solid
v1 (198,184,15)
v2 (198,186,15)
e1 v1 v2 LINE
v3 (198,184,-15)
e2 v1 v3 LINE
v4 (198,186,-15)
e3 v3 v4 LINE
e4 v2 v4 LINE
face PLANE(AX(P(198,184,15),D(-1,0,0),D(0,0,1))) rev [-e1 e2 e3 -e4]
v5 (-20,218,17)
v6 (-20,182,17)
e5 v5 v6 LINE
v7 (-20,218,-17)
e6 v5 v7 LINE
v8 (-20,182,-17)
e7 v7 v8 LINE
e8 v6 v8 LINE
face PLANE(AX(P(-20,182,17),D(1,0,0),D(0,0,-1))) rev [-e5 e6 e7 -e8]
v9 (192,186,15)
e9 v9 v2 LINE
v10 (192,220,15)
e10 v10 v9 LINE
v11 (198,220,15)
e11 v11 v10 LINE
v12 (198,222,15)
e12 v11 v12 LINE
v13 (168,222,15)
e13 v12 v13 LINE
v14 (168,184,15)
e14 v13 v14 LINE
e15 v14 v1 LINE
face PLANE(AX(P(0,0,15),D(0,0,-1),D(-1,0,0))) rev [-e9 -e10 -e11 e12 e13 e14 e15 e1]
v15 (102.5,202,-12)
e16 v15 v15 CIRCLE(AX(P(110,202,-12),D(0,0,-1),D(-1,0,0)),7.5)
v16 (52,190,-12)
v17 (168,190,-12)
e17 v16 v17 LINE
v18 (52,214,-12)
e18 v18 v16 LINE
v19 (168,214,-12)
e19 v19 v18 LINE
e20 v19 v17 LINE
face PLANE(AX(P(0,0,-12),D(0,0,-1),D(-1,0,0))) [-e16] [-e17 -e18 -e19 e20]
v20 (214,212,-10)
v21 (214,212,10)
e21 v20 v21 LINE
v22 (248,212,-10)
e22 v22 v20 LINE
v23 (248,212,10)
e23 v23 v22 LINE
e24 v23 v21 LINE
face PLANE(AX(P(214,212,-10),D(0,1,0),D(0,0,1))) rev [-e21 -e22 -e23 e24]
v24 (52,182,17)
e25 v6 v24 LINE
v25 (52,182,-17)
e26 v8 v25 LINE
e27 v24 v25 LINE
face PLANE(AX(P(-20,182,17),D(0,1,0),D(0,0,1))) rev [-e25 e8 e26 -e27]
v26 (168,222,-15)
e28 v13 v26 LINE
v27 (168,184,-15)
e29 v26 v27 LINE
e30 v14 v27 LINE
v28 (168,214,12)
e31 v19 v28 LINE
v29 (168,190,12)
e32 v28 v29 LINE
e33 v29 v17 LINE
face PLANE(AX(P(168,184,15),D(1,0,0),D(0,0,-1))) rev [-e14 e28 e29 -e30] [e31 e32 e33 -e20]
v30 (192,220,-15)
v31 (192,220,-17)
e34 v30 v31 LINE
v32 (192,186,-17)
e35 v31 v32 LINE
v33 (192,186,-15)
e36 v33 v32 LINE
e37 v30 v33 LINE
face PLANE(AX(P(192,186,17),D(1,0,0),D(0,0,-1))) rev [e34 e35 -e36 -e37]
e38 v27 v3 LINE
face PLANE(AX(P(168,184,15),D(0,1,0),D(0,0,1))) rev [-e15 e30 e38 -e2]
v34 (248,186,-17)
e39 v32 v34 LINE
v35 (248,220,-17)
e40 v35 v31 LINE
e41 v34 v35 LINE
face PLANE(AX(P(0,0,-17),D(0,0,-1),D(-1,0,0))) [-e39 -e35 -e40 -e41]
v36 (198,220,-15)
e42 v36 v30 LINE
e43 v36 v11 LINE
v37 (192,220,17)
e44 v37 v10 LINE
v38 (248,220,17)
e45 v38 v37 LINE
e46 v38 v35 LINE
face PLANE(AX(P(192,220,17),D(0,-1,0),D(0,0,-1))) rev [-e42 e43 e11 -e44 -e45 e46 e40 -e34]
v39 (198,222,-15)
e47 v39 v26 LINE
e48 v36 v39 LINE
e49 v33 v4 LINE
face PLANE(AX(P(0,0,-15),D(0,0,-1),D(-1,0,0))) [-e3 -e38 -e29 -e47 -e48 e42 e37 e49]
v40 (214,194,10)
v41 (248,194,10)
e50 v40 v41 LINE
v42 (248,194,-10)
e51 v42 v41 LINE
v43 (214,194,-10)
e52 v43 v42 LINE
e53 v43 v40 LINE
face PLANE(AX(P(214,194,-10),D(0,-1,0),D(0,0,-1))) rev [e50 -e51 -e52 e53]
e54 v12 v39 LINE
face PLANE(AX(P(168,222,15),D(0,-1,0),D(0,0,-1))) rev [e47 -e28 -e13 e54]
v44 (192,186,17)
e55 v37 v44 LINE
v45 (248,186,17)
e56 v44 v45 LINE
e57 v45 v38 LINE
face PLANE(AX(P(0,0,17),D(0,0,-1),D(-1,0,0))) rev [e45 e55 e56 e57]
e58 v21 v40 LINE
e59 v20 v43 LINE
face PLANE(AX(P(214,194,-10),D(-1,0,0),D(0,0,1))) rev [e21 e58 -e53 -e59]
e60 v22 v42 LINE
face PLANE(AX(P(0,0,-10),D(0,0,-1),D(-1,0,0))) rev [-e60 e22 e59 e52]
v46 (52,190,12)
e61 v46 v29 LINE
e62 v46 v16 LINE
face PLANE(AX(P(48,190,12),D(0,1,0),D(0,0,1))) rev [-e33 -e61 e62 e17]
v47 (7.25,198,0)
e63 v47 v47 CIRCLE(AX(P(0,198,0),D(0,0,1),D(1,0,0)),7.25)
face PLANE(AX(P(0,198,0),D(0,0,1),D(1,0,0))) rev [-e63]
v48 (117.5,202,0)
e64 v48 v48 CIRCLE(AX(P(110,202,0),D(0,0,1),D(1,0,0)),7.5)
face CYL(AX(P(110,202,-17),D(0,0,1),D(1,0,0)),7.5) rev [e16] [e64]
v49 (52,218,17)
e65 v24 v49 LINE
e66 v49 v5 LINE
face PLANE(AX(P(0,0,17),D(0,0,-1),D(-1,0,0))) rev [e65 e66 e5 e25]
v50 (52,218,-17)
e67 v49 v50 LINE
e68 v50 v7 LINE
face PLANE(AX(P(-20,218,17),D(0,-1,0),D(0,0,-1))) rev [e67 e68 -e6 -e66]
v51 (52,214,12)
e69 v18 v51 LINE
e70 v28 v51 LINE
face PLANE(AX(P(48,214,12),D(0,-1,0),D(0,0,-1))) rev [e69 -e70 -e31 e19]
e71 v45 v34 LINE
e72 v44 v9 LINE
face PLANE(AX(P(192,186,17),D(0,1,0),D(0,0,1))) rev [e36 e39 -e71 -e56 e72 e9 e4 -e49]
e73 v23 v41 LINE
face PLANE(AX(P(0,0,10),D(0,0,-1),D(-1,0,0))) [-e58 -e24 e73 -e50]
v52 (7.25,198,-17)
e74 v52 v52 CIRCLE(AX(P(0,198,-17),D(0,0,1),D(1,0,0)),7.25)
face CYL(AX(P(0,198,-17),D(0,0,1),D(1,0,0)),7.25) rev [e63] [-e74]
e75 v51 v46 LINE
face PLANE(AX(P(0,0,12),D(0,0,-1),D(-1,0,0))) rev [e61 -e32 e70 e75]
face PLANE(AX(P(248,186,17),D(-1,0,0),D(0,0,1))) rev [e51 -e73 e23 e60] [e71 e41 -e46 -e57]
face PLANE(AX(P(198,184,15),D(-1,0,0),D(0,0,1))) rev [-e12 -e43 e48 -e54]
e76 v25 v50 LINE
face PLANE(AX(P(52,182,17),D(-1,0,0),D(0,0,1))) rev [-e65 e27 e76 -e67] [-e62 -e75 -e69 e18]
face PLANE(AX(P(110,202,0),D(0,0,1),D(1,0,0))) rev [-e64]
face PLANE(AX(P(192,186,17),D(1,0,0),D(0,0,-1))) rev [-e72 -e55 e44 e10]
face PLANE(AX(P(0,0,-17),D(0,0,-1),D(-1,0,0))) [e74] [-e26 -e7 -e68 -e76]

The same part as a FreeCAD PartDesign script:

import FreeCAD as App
import Part
import Sketcher


def add_polygon(sketch, points):
    """Adds a closed chain of lines whose ends are joined by coincident constraints."""
    first, n = sketch.GeometryCount, len(points)
    for a, b in zip(points, points[1:] + points[:1]):
        sketch.addGeometry(Part.LineSegment(App.Vector(*a, 0), App.Vector(*b, 0)), False)
    for i in range(n):
        sketch.addConstraint(Sketcher.Constraint("Coincident", first + i, 2, first + (i + 1) % n, 1))

doc = App.newDocument("Part")
body = doc.addObject("PartDesign::Body", "Body")

# Sketch on XY plane
sketch1 = body.newObject("Sketcher::SketchObject", "Sketch")
sketch1.AttachmentSupport = (doc.getObject("XY_Plane"), [""])
sketch1.MapMode = "FlatFace"
add_polygon(sketch1, [(-20, 218), (-20, 182), (52, 182), (52, 218)])  # lines 0-3
sketch1.addConstraint(Sketcher.Constraint("Vertical", 0))
sketch1.addConstraint(Sketcher.Constraint("Horizontal", 1))
sketch1.addConstraint(Sketcher.Constraint("Vertical", 2))
sketch1.addConstraint(Sketcher.Constraint("Horizontal", 3))
sketch1.addConstraint(Sketcher.Constraint("DistanceX", 1, 1, 1, 2, 72.0))
sketch1.addConstraint(Sketcher.Constraint("DistanceY", 0, 2, 0, 1, 36.0))
sketch1.addConstraint(Sketcher.Constraint("DistanceX", 0, 2, -1, 1, 20.0))
sketch1.addConstraint(Sketcher.Constraint("DistanceY", -1, 1, 0, 2, 182.0))
pad1 = body.newObject("PartDesign::Pad", "Pad")
pad1.Profile = sketch1
pad1.Length = 34
pad1.Midplane = True

# Sketch on XY plane
sketch2 = body.newObject("Sketcher::SketchObject", "Sketch001")
sketch2.AttachmentSupport = (doc.getObject("XY_Plane"), [""])
sketch2.MapMode = "FlatFace"
add_polygon(sketch2, [(48, 214), (48, 190), (172, 190), (172, 214)])  # lines 0-3
sketch2.addConstraint(Sketcher.Constraint("Vertical", 0))
sketch2.addConstraint(Sketcher.Constraint("Horizontal", 1))
sketch2.addConstraint(Sketcher.Constraint("Vertical", 2))
sketch2.addConstraint(Sketcher.Constraint("Horizontal", 3))
sketch2.addConstraint(Sketcher.Constraint("DistanceX", 1, 1, 1, 2, 124.0))
sketch2.addConstraint(Sketcher.Constraint("DistanceY", 0, 2, 0, 1, 24.0))
sketch2.addConstraint(Sketcher.Constraint("DistanceX", -1, 1, 0, 2, 48.0))
sketch2.addConstraint(Sketcher.Constraint("DistanceY", -1, 1, 0, 2, 190.0))
pad2 = body.newObject("PartDesign::Pad", "Pad001")
pad2.Profile = sketch2
pad2.Length = 24
pad2.Midplane = True

# Sketch on XY plane
sketch3 = body.newObject("Sketcher::SketchObject", "Sketch002")
sketch3.AttachmentSupport = (doc.getObject("XY_Plane"), [""])
sketch3.MapMode = "FlatFace"
add_polygon(sketch3, [(168, 222), (168, 184), (198, 184), (198, 222)])  # lines 0-3
sketch3.addConstraint(Sketcher.Constraint("Vertical", 0))
sketch3.addConstraint(Sketcher.Constraint("Horizontal", 1))
sketch3.addConstraint(Sketcher.Constraint("Vertical", 2))
sketch3.addConstraint(Sketcher.Constraint("Horizontal", 3))
sketch3.addConstraint(Sketcher.Constraint("DistanceX", 1, 1, 1, 2, 30.0))
sketch3.addConstraint(Sketcher.Constraint("DistanceY", 0, 2, 0, 1, 38.0))
sketch3.addConstraint(Sketcher.Constraint("DistanceX", -1, 1, 0, 2, 168.0))
sketch3.addConstraint(Sketcher.Constraint("DistanceY", -1, 1, 0, 2, 184.0))
pad3 = body.newObject("PartDesign::Pad", "Pad002")
pad3.Profile = sketch3
pad3.Length = 30
pad3.Midplane = True

# Sketch on XY plane
sketch4 = body.newObject("Sketcher::SketchObject", "Sketch003")
sketch4.AttachmentSupport = (doc.getObject("XY_Plane"), [""])
sketch4.MapMode = "FlatFace"
add_polygon(sketch4, [(192, 220), (192, 186), (248, 186), (248, 220)])  # lines 0-3
sketch4.addConstraint(Sketcher.Constraint("Vertical", 0))
sketch4.addConstraint(Sketcher.Constraint("Horizontal", 1))
sketch4.addConstraint(Sketcher.Constraint("Vertical", 2))
sketch4.addConstraint(Sketcher.Constraint("Horizontal", 3))
sketch4.addConstraint(Sketcher.Constraint("DistanceX", 1, 1, 1, 2, 56.0))
sketch4.addConstraint(Sketcher.Constraint("DistanceY", 0, 2, 0, 1, 34.0))
sketch4.addConstraint(Sketcher.Constraint("DistanceX", -1, 1, 0, 2, 192.0))
sketch4.addConstraint(Sketcher.Constraint("DistanceY", -1, 1, 0, 2, 186.0))
pad4 = body.newObject("PartDesign::Pad", "Pad003")
pad4.Profile = sketch4
pad4.Length = 34
pad4.Midplane = True

# Sketch on XY plane
sketch5 = body.newObject("Sketcher::SketchObject", "Sketch004")
sketch5.AttachmentSupport = (doc.getObject("XY_Plane"), [""])
sketch5.MapMode = "FlatFace"
add_polygon(sketch5, [(214, 212), (214, 194), (252, 194), (252, 212)])  # lines 0-3
sketch5.addConstraint(Sketcher.Constraint("Vertical", 0))
sketch5.addConstraint(Sketcher.Constraint("Horizontal", 1))
sketch5.addConstraint(Sketcher.Constraint("Vertical", 2))
sketch5.addConstraint(Sketcher.Constraint("Horizontal", 3))
sketch5.addConstraint(Sketcher.Constraint("DistanceX", 1, 1, 1, 2, 38.0))
sketch5.addConstraint(Sketcher.Constraint("DistanceY", 0, 2, 0, 1, 18.0))
sketch5.addConstraint(Sketcher.Constraint("DistanceX", -1, 1, 0, 2, 214.0))
sketch5.addConstraint(Sketcher.Constraint("DistanceY", -1, 1, 0, 2, 194.0))
pocket1 = body.newObject("PartDesign::Pocket", "Pocket")
pocket1.Profile = sketch5
pocket1.Length = 20
pocket1.Midplane = True

# Sketch on XY plane
sketch6 = body.newObject("Sketcher::SketchObject", "Sketch005")
sketch6.AttachmentSupport = (doc.getObject("XY_Plane"), [""])
sketch6.MapMode = "FlatFace"
sketch6.addGeometry(Part.Circle(App.Vector(0, 198, 0), App.Vector(0, 0, 1), 7), False)
sketch6.addConstraint(Sketcher.Constraint("PointOnObject", 0, 3, -2))
sketch6.addConstraint(Sketcher.Constraint("Diameter", 0, 14.5))
sketch6.addConstraint(Sketcher.Constraint("DistanceY", -1, 1, 0, 3, 198.0))
pocket2 = body.newObject("PartDesign::Pocket", "Pocket001")
pocket2.Profile = sketch6
pocket2.Type = "ThroughAll"

# Sketch on XY plane
sketch7 = body.newObject("Sketcher::SketchObject", "Sketch006")
sketch7.AttachmentSupport = (doc.getObject("XY_Plane"), [""])
sketch7.MapMode = "FlatFace"
sketch7.addGeometry(Part.Circle(App.Vector(110, 202, 0), App.Vector(0, 0, 1), 8), False)
sketch7.addConstraint(Sketcher.Constraint("Diameter", 0, 15.0))
sketch7.addConstraint(Sketcher.Constraint("DistanceX", -1, 1, 0, 3, 110.0))
sketch7.addConstraint(Sketcher.Constraint("DistanceY", -1, 1, 0, 3, 202.0))
pocket3 = body.newObject("PartDesign::Pocket", "Pocket002")
pocket3.Profile = sketch7
pocket3.Type = "ThroughAll"

doc.recompute()
